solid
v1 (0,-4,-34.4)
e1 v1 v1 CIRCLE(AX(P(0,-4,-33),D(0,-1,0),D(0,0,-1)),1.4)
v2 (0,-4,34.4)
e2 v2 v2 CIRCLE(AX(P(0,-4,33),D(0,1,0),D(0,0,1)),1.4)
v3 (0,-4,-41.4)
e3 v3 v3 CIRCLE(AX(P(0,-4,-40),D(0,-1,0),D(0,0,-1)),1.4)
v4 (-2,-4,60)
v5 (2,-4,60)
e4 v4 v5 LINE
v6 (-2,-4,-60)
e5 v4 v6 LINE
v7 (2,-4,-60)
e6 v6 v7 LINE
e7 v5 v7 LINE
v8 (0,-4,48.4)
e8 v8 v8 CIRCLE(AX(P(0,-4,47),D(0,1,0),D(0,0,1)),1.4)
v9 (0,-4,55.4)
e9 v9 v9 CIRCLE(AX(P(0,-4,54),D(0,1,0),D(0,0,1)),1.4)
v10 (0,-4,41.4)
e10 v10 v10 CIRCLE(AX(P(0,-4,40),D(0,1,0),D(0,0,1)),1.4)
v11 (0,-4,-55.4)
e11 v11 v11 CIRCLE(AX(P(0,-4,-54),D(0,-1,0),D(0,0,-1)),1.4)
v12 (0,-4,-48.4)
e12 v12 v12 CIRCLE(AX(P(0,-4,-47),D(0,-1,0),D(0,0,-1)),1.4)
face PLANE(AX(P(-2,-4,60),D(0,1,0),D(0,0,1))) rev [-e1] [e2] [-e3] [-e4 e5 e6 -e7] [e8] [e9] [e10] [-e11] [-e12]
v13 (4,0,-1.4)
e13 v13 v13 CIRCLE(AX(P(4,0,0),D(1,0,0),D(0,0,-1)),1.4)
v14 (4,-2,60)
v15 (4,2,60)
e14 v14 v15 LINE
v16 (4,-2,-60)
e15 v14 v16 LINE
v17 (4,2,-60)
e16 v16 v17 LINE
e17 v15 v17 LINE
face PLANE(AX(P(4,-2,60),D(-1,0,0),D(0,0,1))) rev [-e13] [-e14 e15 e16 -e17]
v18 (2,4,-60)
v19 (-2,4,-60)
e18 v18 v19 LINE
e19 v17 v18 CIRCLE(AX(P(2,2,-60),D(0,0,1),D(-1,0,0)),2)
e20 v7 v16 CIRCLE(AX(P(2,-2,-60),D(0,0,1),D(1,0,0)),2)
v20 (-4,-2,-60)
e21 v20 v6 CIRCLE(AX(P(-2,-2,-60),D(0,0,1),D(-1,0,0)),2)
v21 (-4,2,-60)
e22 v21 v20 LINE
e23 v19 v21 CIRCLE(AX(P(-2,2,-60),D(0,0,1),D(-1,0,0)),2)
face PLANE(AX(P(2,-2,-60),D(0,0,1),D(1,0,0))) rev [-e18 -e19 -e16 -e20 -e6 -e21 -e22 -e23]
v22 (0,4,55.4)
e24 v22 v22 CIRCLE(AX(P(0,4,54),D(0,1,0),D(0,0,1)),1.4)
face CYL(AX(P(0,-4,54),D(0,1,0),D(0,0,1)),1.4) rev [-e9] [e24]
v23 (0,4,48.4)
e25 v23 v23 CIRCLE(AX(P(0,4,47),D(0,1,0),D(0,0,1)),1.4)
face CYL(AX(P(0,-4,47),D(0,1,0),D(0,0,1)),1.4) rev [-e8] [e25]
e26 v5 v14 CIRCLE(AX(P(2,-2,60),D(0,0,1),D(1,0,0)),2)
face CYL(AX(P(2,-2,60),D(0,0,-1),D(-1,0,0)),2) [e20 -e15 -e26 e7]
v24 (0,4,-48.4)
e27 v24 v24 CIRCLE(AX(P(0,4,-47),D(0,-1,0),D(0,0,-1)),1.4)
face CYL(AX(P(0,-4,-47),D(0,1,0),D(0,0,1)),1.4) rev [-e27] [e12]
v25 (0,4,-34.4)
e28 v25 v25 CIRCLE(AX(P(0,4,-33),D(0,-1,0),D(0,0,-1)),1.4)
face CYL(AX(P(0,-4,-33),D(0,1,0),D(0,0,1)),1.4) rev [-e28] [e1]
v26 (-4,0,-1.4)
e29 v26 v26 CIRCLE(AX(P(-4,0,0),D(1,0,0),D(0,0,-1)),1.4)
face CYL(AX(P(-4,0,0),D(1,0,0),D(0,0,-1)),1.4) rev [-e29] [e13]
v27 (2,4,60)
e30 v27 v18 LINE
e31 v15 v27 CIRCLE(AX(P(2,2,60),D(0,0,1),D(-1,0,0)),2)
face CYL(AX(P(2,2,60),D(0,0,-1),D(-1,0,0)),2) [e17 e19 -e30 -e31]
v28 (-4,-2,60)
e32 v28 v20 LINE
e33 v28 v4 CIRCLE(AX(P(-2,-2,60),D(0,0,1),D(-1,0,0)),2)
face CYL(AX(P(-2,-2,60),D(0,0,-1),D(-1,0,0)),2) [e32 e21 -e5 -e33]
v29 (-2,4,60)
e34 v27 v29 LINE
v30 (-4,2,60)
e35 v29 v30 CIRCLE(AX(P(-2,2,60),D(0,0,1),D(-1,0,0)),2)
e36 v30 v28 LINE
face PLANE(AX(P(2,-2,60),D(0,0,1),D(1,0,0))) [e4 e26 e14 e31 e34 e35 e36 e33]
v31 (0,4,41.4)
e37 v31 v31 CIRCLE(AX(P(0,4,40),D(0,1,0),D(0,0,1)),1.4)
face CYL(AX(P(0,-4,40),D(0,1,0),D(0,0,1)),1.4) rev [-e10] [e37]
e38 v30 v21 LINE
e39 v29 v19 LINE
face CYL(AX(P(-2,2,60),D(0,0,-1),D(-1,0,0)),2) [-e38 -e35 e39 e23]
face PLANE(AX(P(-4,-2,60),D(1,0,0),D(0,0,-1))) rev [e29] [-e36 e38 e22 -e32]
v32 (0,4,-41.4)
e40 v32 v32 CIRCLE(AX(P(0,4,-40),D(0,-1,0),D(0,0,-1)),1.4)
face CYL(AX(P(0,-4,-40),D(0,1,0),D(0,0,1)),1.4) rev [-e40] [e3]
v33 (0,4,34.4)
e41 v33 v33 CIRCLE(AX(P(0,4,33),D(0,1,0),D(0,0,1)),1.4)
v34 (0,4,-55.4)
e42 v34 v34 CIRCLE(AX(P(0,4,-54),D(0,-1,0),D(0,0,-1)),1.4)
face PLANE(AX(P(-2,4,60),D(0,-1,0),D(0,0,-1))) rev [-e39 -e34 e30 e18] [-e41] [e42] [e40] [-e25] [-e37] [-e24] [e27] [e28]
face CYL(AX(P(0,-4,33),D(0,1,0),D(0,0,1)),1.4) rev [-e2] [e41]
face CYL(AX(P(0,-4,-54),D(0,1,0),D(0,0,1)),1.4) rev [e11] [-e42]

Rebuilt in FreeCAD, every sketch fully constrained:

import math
import FreeCAD as App
import Part
import Sketcher

V = App.Vector

doc = App.newDocument("Part")
body = doc.addObject("PartDesign::Body", "Body")

sketch1 = body.newObject("Sketcher::SketchObject", "Sketch")
sketch1.AttachmentSupport = (doc.getObject("XY_Plane"), [""])
sketch1.MapMode = "FlatFace"
sketch1.addGeometry(Part.LineSegment(V(-2, -4, 0), V(2, -4, 0)), False)
sketch1.addGeometry(Part.ArcOfCircle(Part.Circle(V(2, -2, 0), V(0, 0, 1), 2), math.radians(-90), math.radians(0)), False)
sketch1.addGeometry(Part.LineSegment(V(4, -2, 0), V(4, 2, 0)), False)
sketch1.addGeometry(Part.ArcOfCircle(Part.Circle(V(2, 2, 0), V(0, 0, 1), 2), math.radians(0), math.radians(90)), False)
sketch1.addGeometry(Part.LineSegment(V(2, 4, 0), V(-2, 4, 0)), False)
sketch1.addGeometry(Part.ArcOfCircle(Part.Circle(V(-2, 2, 0), V(0, 0, 1), 2), math.radians(90), math.radians(180)), False)
sketch1.addGeometry(Part.LineSegment(V(-4, 2, 0), V(-4, -2, 0)), False)
sketch1.addGeometry(Part.ArcOfCircle(Part.Circle(V(-2, -2, 0), V(0, 0, 1), 2), math.radians(-180), math.radians(-90)), False)
sketch1.addConstraint(Sketcher.Constraint("Tangent", 0, 2, 1, 1))
sketch1.addConstraint(Sketcher.Constraint("Tangent", 1, 2, 2, 1))
sketch1.addConstraint(Sketcher.Constraint("Tangent", 2, 2, 3, 1))
sketch1.addConstraint(Sketcher.Constraint("Tangent", 3, 2, 4, 1))
sketch1.addConstraint(Sketcher.Constraint("Tangent", 4, 2, 5, 1))
sketch1.addConstraint(Sketcher.Constraint("Tangent", 5, 2, 6, 1))
sketch1.addConstraint(Sketcher.Constraint("Tangent", 6, 2, 7, 1))
sketch1.addConstraint(Sketcher.Constraint("Tangent", 7, 2, 0, 1))
sketch1.addConstraint(Sketcher.Constraint("Horizontal", 0))
sketch1.addConstraint(Sketcher.Constraint("Vertical", 2))
sketch1.addConstraint(Sketcher.Constraint("Horizontal", 4))
sketch1.addConstraint(Sketcher.Constraint("Vertical", 6))
sketch1.addConstraint(Sketcher.Constraint("Equal", 1, 3))
sketch1.addConstraint(Sketcher.Constraint("Equal", 3, 5))
sketch1.addConstraint(Sketcher.Constraint("Equal", 5, 7))
sketch1.addConstraint(Sketcher.Constraint("Symmetric", 1, 3, 5, 3, -1, 1))
sketch1.addConstraint(Sketcher.Constraint("Equal", 4, 2))
sketch1.addConstraint(Sketcher.Constraint("Radius", 1, 2.0))
sketch1.addConstraint(Sketcher.Constraint("DistanceX", 0, 1, 0, 2, 4.0))
pad1 = body.newObject("PartDesign::Pad", "Pad")
pad1.Profile = sketch1
pad1.Length = 120
pad1.Midplane = True

sketch2 = body.newObject("Sketcher::SketchObject", "Sketch001")
sketch2.AttachmentSupport = (doc.getObject("YZ_Plane"), [""])
sketch2.MapMode = "FlatFace"
sketch2.AttachmentOffset = App.Placement(V(0, 0, 4), App.Rotation())
sketch2.addGeometry(Part.Circle(V(0, 0, 0), V(0, 0, 1), 1.4), False)
sketch2.addConstraint(Sketcher.Constraint("Coincident", 0, 3, -1, 1))
sketch2.addConstraint(Sketcher.Constraint("Diameter", 0, 2.8))
pocket1 = body.newObject("PartDesign::Pocket", "Pocket")
pocket1.Profile = sketch2
pocket1.Type = "ThroughAll"

sketch3 = body.newObject("Sketcher::SketchObject", "Sketch002")
sketch3.AttachmentSupport = (doc.getObject("XZ_Plane"), [""])
sketch3.MapMode = "FlatFace"
sketch3.AttachmentOffset = App.Placement(V(0, 0, -4), App.Rotation())
sketch3.addGeometry(Part.Circle(V(0, 54, 0), V(0, 0, 1), 1.4), False)
sketch3.addConstraint(Sketcher.Constraint("PointOnObject", 0, 3, -2))
sketch3.addConstraint(Sketcher.Constraint("Diameter", 0, 2.8))
sketch3.addConstraint(Sketcher.Constraint("DistanceY", -1, 1, 0, 3, 54.0))
pocket2 = body.newObject("PartDesign::Pocket", "Pocket001")
pocket2.Profile = sketch3
pocket2.Type = "ThroughAll"
pocket2.Reversed = True
doc.recompute()

mirrored = body.newObject("PartDesign::Mirrored", "Mirrored")
mirrored.Originals = [pocket2]
mirrored.MirrorPlane = (doc.getObject("XY_Plane"), [""])
body.Tip = mirrored
doc.recompute()

linearpattern = body.newObject("PartDesign::LinearPattern", "LinearPattern")
linearpattern.Originals = [pocket2]
linearpattern.Direction = (doc.getObject("Z_Axis"), [""])
linearpattern.Mode = "offset"
linearpattern.Offset = 7
linearpattern.Occurrences = 4
body.Tip = linearpattern

sketch4 = body.newObject("Sketcher::SketchObject", "Sketch003")
sketch4.AttachmentSupport = (doc.getObject("XZ_Plane"), [""])
sketch4.MapMode = "FlatFace"
sketch4.AttachmentOffset = App.Placement(V(0, 0, -4), App.Rotation())
sketch4.addGeometry(Part.Circle(V(0, -47, 0), V(0, 0, 1), 1.4), False)
sketch4.addConstraint(Sketcher.Constraint("PointOnObject", 0, 3, -2))
sketch4.addConstraint(Sketcher.Constraint("Diameter", 0, 2.8))
sketch4.addConstraint(Sketcher.Constraint("DistanceY", 0, 3, -1, 1, 47.0))
pocket3 = body.newObject("PartDesign::Pocket", "Pocket002")
pocket3.Profile = sketch4
pocket3.Type = "ThroughAll"
pocket3.Reversed = True

sketch5 = body.newObject("Sketcher::SketchObject", "Sketch004")
sketch5.AttachmentSupport = (doc.getObject("XZ_Plane"), [""])
sketch5.MapMode = "FlatFace"
sketch5.AttachmentOffset = App.Placement(V(0, 0, -4), App.Rotation())
sketch5.addGeometry(Part.Circle(V(0, -40, 0), V(0, 0, 1), 1.4), False)
sketch5.addConstraint(Sketcher.Constraint("PointOnObject", 0, 3, -2))
sketch5.addConstraint(Sketcher.Constraint("Diameter", 0, 2.8))
sketch5.addConstraint(Sketcher.Constraint("DistanceY", 0, 3, -1, 1, 40.0))
pocket4 = body.newObject("PartDesign::Pocket", "Pocket003")
pocket4.Profile = sketch5
pocket4.Type = "ThroughAll"
pocket4.Reversed = True

sketch6 = body.newObject("Sketcher::SketchObject", "Sketch005")
sketch6.AttachmentSupport = (doc.getObject("XZ_Plane"), [""])
sketch6.MapMode = "FlatFace"
sketch6.AttachmentOffset = App.Placement(V(0, 0, -4), App.Rotation())
sketch6.addGeometry(Part.Circle(V(0, -33, 0), V(0, 0, 1), 1.4), False)
sketch6.addConstraint(Sketcher.Constraint("PointOnObject", 0, 3, -2))
sketch6.addConstraint(Sketcher.Constraint("Diameter", 0, 2.8))
sketch6.addConstraint(Sketcher.Constraint("DistanceY", 0, 3, -1, 1, 33.0))
pocket5 = body.newObject("PartDesign::Pocket", "Pocket004")
pocket5.Profile = sketch6
pocket5.Type = "ThroughAll"
pocket5.Reversed = True

sketch7 = body.newObject("Sketcher::SketchObject", "Sketch006")
sketch7.AttachmentSupport = (doc.getObject("XZ_Plane"), [""])
sketch7.MapMode = "FlatFace"
sketch7.AttachmentOffset = App.Placement(V(0, 0, -4), App.Rotation())
sketch7.addGeometry(Part.Circle(V(0, -61, 0), V(0, 0, 1), 1.4), False)
sketch7.addConstraint(Sketcher.Constraint("PointOnObject", 0, 3, -2))
sketch7.addConstraint(Sketcher.Constraint("Diameter", 0, 2.8))
sketch7.addConstraint(Sketcher.Constraint("DistanceY", 0, 3, -1, 1, 61.0))
pocket6 = body.newObject("PartDesign::Pocket", "Pocket005")
pocket6.Profile = sketch7
pocket6.Type = "ThroughAll"
pocket6.Reversed = True

sketch8 = body.newObject("Sketcher::SketchObject", "Sketch007")
sketch8.AttachmentSupport = (doc.getObject("XZ_Plane"), [""])
sketch8.MapMode = "FlatFace"
sketch8.AttachmentOffset = App.Placement(V(0, 0, -4), App.Rotation())
sketch8.addGeometry(Part.Circle(V(0, -68, 0), V(0, 0, 1), 1.4), False)
sketch8.addConstraint(Sketcher.Constraint("PointOnObject", 0, 3, -2))
sketch8.addConstraint(Sketcher.Constraint("Diameter", 0, 2.8))
sketch8.addConstraint(Sketcher.Constraint("DistanceY", 0, 3, -1, 1, 68.0))
pocket7 = body.newObject("PartDesign::Pocket", "Pocket006")
pocket7.Profile = sketch8
pocket7.Type = "ThroughAll"
pocket7.Reversed = True

sketch9 = body.newObject("Sketcher::SketchObject", "Sketch008")
sketch9.AttachmentSupport = (doc.getObject("XZ_Plane"), [""])
sketch9.MapMode = "FlatFace"
sketch9.AttachmentOffset = App.Placement(V(0, 0, -4), App.Rotation())
sketch9.addGeometry(Part.Circle(V(0, -75, 0), V(0, 0, 1), 1.4), False)
sketch9.addConstraint(Sketcher.Constraint("PointOnObject", 0, 3, -2))
sketch9.addConstraint(Sketcher.Constraint("Diameter", 0, 2.8))
sketch9.addConstraint(Sketcher.Constraint("DistanceY", 0, 3, -1, 1, 75.0))
pocket8 = body.newObject("PartDesign::Pocket", "Pocket007")
pocket8.Profile = sketch9
pocket8.Type = "ThroughAll"
pocket8.Reversed = True

sketch10 = body.newObject("Sketcher::SketchObject", "Sketch009")
sketch10.AttachmentSupport = (doc.getObject("XZ_Plane"), [""])
sketch10.MapMode = "FlatFace"
sketch10.AttachmentOffset = App.Placement(V(0, 0, -4), App.Rotation())
sketch10.addGeometry(Part.Circle(V(0, 47, 0), V(0, 0, 1), 1.4), False)
sketch10.addConstraint(Sketcher.Constraint("PointOnObject", 0, 3, -2))
sketch10.addConstraint(Sketcher.Constraint("Diameter", 0, 2.8))
sketch10.addConstraint(Sketcher.Constraint("DistanceY", -1, 1, 0, 3, 47.0))
pocket9 = body.newObject("PartDesign::Pocket", "Pocket008")
pocket9.Profile = sketch10
pocket9.Type = "ThroughAll"
pocket9.Reversed = True

sketch11 = body.newObject("Sketcher::SketchObject", "Sketch010")
sketch11.AttachmentSupport = (doc.getObject("XZ_Plane"), [""])
sketch11.MapMode = "FlatFace"
sketch11.AttachmentOffset = App.Placement(V(0, 0, -4), App.Rotation())
sketch11.addGeometry(Part.Circle(V(0, 40, 0), V(0, 0, 1), 1.4), False)
sketch11.addConstraint(Sketcher.Constraint("PointOnObject", 0, 3, -2))
sketch11.addConstraint(Sketcher.Constraint("Diameter", 0, 2.8))
sketch11.addConstraint(Sketcher.Constraint("DistanceY", -1, 1, 0, 3, 40.0))
pocket10 = body.newObject("PartDesign::Pocket", "Pocket009")
pocket10.Profile = sketch11
pocket10.Type = "ThroughAll"
pocket10.Reversed = True

sketch12 = body.newObject("Sketcher::SketchObject", "Sketch011")
sketch12.AttachmentSupport = (doc.getObject("XZ_Plane"), [""])
sketch12.MapMode = "FlatFace"
sketch12.AttachmentOffset = App.Placement(V(0, 0, -4), App.Rotation())
sketch12.addGeometry(Part.Circle(V(0, 33, 0), V(0, 0, 1), 1.4), False)
sketch12.addConstraint(Sketcher.Constraint("PointOnObject", 0, 3, -2))
sketch12.addConstraint(Sketcher.Constraint("Diameter", 0, 2.8))
sketch12.addConstraint(Sketcher.Constraint("DistanceY", -1, 1, 0, 3, 33.0))
pocket11 = body.newObject("PartDesign::Pocket", "Pocket010")
pocket11.Profile = sketch12
pocket11.Type = "ThroughAll"
pocket11.Reversed = True

sketch13 = body.newObject("Sketcher::SketchObject", "Sketch012")
sketch13.AttachmentSupport = (doc.getObject("XZ_Plane"), [""])
sketch13.MapMode = "FlatFace"
sketch13.AttachmentOffset = App.Placement(V(0, 0, -4), App.Rotation())
sketch13.addGeometry(Part.Circle(V(0, -54, 0), V(0, 0, 1), 1.4), False)
sketch13.addConstraint(Sketcher.Constraint("PointOnObject", 0, 3, -2))
sketch13.addConstraint(Sketcher.Constraint("Diameter", 0, 2.8))
sketch13.addConstraint(Sketcher.Constraint("DistanceY", 0, 3, -1, 1, 54.0))
pocket12 = body.newObject("PartDesign::Pocket", "Pocket011")
pocket12.Profile = sketch13
pocket12.Type = "ThroughAll"
pocket12.Reversed = True

sketch14 = body.newObject("Sketcher::SketchObject", "Sketch013")
sketch14.AttachmentSupport = (doc.getObject("XZ_Plane"), [""])
sketch14.MapMode = "FlatFace"
sketch14.AttachmentOffset = App.Placement(V(0, 0, -4), App.Rotation())
sketch14.addGeometry(Part.LineSegment(V(-0.979796, 60, 0), V(0.979796, 60, 0)), False)
sketch14.addGeometry(Part.ArcOfCircle(Part.Circle(V(0, 61, 0), V(0, 0, 1), 1.4), math.radians(-134.415309), math.radians(-45.584691)), False)
sketch14.addConstraint(Sketcher.Constraint("Coincident", 0, 1, 1, 1))
sketch14.addConstraint(Sketcher.Constraint("Coincident", 1, 2, 0, 2))
sketch14.addConstraint(Sketcher.Constraint("Horizontal", 0))
sketch14.addConstraint(Sketcher.Constraint("PointOnObject", 1, 3, -2))
sketch14.addConstraint(Sketcher.Constraint("Radius", 1, 1.4))
sketch14.addConstraint(Sketcher.Constraint("DistanceY", -1, 1, 1, 3, 61.0))
sketch14.addConstraint(Sketcher.Constraint("DistanceY", -1, 1, 0, 1, 60.0))
pad2 = body.newObject("PartDesign::Pad", "Pad001")
pad2.Profile = sketch14
pad2.Length = 8

sketch15 = body.newObject("Sketcher::SketchObject", "Sketch014")
sketch15.AttachmentSupport = (doc.getObject("XZ_Plane"), [""])
sketch15.MapMode = "FlatFace"
sketch15.AttachmentOffset = App.Placement(V(0, 0, -4), App.Rotation())
sketch15.addGeometry(Part.LineSegment(V(-0.979796, -60, 0), V(0.979796, -60, 0)), False)
sketch15.addGeometry(Part.ArcOfCircle(Part.Circle(V(0, -61, 0), V(0, 0, 1), 1.4), math.radians(45.584691), math.radians(134.415309)), False)
sketch15.addConstraint(Sketcher.Constraint("Coincident", 0, 1, 1, 2))
sketch15.addConstraint(Sketcher.Constraint("Coincident", 1, 1, 0, 2))
sketch15.addConstraint(Sketcher.Constraint("Horizontal", 0))
sketch15.addConstraint(Sketcher.Constraint("PointOnObject", 1, 3, -2))
sketch15.addConstraint(Sketcher.Constraint("Radius", 1, 1.4))
sketch15.addConstraint(Sketcher.Constraint("DistanceY", 1, 3, -1, 1, 61.0))
sketch15.addConstraint(Sketcher.Constraint("DistanceY", 0, 1, -1, 1, 60.0))
pad3 = body.newObject("PartDesign::Pad", "Pad002")
pad3.Profile = sketch15
pad3.Length = 8

doc.recompute()
